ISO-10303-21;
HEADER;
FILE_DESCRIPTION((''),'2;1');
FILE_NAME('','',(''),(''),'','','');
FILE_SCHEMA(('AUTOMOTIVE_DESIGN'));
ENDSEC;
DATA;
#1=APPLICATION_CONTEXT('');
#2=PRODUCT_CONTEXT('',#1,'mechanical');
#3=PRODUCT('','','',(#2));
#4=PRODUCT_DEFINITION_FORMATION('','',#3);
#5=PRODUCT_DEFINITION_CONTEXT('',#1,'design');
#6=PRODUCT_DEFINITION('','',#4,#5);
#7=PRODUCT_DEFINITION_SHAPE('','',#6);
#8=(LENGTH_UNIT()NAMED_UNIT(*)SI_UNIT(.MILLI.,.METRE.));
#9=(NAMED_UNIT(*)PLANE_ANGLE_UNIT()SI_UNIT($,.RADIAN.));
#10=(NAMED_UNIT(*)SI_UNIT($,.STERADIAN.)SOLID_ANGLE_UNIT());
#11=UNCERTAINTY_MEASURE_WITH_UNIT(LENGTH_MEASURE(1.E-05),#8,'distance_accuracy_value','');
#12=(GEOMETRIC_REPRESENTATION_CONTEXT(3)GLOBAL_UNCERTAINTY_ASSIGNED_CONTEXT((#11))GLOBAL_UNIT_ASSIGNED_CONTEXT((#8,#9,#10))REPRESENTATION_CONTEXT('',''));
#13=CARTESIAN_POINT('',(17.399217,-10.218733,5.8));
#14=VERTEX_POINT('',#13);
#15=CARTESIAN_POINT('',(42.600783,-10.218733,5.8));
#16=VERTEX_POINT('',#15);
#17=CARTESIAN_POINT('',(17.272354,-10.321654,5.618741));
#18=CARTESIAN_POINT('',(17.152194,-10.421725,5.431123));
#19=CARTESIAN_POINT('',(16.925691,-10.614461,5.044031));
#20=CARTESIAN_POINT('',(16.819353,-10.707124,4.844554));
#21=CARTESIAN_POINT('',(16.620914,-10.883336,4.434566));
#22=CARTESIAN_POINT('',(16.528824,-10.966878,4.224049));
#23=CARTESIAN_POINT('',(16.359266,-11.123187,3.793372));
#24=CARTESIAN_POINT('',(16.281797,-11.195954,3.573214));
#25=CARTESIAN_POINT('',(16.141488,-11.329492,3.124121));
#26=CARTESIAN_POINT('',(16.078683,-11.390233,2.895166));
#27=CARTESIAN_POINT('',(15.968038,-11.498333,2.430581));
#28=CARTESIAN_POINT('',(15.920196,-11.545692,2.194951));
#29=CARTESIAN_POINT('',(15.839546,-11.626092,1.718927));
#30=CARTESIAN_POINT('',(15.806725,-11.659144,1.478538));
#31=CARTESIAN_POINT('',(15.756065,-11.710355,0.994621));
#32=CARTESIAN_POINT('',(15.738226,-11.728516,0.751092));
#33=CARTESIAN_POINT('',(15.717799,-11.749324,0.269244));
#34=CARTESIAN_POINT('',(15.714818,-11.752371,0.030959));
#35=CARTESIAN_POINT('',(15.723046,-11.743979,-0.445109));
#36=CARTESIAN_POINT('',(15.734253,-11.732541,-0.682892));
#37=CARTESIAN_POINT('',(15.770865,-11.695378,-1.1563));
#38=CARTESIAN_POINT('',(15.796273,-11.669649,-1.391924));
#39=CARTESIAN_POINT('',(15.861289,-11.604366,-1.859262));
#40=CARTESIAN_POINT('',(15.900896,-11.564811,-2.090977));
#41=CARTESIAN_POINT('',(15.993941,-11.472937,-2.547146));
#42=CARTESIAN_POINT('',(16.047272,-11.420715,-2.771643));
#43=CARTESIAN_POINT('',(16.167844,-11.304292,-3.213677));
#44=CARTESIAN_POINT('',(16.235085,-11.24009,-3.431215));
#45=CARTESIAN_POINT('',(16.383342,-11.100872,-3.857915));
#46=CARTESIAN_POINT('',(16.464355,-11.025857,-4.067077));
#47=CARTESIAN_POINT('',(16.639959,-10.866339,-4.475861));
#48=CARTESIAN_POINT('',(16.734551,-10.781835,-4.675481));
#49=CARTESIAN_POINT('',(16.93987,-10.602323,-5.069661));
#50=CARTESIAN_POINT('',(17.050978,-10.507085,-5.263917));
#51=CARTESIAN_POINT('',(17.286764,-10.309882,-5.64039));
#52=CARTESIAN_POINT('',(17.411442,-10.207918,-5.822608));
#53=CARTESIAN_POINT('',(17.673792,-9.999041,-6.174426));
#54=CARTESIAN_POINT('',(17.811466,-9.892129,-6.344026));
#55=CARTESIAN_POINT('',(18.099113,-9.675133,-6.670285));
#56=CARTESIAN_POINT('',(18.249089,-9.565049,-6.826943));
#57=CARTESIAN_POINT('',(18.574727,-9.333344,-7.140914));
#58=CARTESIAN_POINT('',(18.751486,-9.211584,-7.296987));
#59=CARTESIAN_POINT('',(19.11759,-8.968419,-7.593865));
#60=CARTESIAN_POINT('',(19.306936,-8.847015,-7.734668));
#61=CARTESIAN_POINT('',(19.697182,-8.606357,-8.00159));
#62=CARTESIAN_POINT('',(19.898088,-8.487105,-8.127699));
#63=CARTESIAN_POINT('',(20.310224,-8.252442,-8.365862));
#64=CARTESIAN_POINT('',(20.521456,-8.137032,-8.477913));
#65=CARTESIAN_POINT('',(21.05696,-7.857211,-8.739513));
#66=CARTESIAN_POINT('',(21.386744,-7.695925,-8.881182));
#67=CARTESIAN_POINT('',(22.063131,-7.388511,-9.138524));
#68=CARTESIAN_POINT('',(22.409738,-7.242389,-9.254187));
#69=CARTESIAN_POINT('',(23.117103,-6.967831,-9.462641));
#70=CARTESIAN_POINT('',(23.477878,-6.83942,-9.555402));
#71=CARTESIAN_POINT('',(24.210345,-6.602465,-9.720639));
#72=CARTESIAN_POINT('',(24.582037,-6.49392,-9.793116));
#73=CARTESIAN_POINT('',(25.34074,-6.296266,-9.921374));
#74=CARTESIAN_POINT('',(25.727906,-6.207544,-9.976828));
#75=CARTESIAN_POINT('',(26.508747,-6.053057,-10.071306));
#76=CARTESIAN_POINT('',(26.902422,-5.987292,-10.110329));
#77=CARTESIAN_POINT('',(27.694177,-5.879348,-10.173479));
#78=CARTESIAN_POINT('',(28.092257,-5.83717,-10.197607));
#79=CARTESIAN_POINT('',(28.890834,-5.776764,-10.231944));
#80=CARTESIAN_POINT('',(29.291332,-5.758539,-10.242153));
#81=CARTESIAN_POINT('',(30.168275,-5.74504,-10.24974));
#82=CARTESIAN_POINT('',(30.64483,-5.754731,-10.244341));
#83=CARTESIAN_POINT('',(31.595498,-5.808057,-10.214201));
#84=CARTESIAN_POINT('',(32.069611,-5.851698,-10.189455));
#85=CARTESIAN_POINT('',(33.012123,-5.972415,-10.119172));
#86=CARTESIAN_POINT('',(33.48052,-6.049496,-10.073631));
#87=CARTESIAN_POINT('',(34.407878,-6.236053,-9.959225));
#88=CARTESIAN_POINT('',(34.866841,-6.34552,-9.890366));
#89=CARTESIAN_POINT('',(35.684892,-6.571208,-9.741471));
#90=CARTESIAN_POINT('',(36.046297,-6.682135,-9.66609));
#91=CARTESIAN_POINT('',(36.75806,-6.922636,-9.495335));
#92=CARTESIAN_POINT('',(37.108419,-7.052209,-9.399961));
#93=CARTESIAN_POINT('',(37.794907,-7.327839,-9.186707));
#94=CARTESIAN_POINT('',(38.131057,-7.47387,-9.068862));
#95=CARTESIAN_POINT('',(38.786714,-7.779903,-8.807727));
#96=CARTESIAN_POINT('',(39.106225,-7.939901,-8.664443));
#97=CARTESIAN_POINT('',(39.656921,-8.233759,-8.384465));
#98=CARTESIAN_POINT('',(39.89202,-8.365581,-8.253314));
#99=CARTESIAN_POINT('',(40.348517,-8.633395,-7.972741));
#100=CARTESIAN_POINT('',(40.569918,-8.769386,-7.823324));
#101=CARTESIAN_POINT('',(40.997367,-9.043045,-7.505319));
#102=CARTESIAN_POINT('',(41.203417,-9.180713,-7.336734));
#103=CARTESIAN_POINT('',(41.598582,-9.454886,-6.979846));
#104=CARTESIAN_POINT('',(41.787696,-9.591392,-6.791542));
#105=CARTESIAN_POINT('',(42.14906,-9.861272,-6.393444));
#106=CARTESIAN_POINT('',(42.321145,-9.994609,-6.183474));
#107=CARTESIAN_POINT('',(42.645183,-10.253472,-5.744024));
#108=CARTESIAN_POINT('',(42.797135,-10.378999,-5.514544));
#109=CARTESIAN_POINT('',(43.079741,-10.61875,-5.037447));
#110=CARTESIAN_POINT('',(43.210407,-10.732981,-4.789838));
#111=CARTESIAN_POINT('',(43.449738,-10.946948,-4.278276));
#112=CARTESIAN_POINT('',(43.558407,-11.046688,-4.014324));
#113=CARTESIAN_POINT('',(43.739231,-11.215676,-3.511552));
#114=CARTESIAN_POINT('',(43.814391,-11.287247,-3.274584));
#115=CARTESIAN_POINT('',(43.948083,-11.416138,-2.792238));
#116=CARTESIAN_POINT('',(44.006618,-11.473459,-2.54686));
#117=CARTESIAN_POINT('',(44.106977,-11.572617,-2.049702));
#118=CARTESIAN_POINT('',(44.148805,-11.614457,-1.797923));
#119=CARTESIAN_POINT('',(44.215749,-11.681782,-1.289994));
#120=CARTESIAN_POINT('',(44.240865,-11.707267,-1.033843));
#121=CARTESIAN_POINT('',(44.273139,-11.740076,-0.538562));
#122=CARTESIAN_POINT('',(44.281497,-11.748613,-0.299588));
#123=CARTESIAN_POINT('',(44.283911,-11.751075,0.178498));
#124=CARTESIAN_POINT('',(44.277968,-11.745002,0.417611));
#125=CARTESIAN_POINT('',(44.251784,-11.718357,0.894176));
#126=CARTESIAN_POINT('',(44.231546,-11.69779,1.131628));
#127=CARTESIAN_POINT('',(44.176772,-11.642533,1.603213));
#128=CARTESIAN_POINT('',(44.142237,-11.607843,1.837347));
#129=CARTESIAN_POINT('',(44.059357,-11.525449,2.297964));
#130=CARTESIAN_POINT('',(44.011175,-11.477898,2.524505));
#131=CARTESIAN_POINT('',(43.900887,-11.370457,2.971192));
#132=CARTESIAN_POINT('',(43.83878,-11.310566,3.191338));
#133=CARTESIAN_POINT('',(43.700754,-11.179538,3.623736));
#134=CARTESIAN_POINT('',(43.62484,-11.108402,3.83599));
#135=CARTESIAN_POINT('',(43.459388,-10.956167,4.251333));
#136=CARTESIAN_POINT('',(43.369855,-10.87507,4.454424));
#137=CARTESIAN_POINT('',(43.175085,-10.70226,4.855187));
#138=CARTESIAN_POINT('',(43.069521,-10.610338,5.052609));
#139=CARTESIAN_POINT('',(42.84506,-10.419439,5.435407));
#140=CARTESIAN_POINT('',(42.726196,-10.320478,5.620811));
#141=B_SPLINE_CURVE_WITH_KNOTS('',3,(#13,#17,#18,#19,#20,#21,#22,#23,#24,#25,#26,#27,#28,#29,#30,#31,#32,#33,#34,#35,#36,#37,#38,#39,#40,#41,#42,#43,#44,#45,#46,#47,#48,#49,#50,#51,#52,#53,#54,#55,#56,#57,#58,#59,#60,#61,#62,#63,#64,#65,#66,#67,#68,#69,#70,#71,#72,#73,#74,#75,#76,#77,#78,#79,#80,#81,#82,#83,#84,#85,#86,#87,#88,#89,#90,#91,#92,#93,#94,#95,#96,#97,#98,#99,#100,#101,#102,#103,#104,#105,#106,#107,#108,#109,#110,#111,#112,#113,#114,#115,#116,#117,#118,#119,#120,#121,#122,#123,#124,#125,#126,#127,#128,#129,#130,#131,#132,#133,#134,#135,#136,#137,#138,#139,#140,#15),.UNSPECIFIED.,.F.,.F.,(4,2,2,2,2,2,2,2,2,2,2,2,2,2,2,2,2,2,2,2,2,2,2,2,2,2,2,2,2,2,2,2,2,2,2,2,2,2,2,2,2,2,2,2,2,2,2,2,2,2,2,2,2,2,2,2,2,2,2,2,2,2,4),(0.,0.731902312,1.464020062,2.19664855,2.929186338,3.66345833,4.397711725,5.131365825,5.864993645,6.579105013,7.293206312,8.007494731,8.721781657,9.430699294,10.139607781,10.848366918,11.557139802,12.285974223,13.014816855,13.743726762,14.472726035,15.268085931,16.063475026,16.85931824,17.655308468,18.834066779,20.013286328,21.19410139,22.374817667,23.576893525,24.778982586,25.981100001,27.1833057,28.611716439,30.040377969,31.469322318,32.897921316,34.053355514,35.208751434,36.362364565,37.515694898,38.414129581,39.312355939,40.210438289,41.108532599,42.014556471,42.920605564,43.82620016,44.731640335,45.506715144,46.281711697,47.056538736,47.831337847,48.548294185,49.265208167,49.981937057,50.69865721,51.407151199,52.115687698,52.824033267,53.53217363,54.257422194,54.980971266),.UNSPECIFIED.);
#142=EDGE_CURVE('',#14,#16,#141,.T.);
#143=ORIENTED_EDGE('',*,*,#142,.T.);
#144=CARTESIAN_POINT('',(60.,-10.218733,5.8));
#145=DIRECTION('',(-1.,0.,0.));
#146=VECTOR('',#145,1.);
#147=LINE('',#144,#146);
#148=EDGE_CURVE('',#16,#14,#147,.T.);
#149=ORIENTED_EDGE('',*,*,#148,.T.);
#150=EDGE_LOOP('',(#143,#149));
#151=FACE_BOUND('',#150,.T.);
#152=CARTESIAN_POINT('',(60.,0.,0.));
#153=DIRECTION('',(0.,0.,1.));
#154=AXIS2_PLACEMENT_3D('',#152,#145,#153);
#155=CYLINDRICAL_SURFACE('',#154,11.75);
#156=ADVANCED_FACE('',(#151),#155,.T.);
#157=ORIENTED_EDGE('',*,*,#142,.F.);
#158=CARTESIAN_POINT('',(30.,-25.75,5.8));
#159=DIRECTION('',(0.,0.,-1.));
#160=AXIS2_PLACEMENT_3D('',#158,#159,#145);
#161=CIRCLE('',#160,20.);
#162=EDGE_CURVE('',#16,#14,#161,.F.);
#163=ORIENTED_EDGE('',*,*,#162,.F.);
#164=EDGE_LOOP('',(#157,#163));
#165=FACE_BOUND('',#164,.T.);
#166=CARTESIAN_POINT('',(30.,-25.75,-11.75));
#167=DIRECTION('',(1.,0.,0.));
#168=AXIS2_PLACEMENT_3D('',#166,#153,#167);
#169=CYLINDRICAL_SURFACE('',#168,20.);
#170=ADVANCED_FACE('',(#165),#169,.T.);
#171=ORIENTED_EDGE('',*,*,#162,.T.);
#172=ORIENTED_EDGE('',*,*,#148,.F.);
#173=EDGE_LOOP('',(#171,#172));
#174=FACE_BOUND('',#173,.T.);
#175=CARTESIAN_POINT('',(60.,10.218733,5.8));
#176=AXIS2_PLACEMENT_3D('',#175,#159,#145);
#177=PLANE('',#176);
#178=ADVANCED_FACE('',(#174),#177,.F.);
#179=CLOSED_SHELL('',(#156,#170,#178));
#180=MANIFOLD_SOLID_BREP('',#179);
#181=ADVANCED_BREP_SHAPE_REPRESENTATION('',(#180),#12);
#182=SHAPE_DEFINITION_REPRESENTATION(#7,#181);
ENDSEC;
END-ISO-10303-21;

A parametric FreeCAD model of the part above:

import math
import FreeCAD as App
import Part
import Sketcher
Q = App.Units.Quantity

doc = App.newDocument("Part")
body = doc.addObject("PartDesign::Body", "Body")

sketch1 = body.newObject("Sketcher::SketchObject", "Sketch")
sketch1.AttachmentSupport = (doc.getObject("YZ_Plane"), [""])
sketch1.MapMode = "FlatFace"
sketch1.addGeometry(Part.Circle(App.Vector(0, 0, 0), App.Vector(0, 0, 1), 11.75), False)
sketch1.addConstraint(Sketcher.Constraint("Coincident", 0, 3, -1, 1))
sketch1.addConstraint(Sketcher.Constraint("Diameter", 0, Q("23.5 mm")))
pad1 = body.newObject("PartDesign::Pad", "Pad")
pad1.Profile = sketch1
pad1.Length = 60

sketch2 = body.newObject("Sketcher::SketchObject", "Sketch001")
sketch2.AttachmentSupport = (doc.getObject("YZ_Plane"), [""])
sketch2.MapMode = "FlatFace"
sketch2.addGeometry(Part.LineSegment(App.Vector(10.218733, 5.8, 0), App.Vector(-10.218733, 5.8, 0)), False)
sketch2.addGeometry(Part.ArcOfCircle(Part.Circle(App.Vector(0, 0, 0), App.Vector(0, 0, 1), 11.75), math.radians(29.578596), math.radians(150.421404)), False)
sketch2.addConstraint(Sketcher.Constraint("Coincident", 0, 1, 1, 1))
sketch2.addConstraint(Sketcher.Constraint("Coincident", 1, 2, 0, 2))
sketch2.addConstraint(Sketcher.Constraint("Horizontal", 0))
sketch2.addConstraint(Sketcher.Constraint("Coincident", 1, 3, -1, 1))
sketch2.addConstraint(Sketcher.Constraint("Radius", 1, Q("11.75 mm")))
sketch2.addConstraint(Sketcher.Constraint("DistanceY", -1, 1, 0, 1, Q("5.8 mm")))
pocket1 = body.newObject("PartDesign::Pocket", "Pocket")
pocket1.Profile = sketch2
pocket1.Type = "ThroughAll"
pocket1.Reversed = True

sketch3 = body.newObject("Sketcher::SketchObject", "Sketch002")
sketch3.AttachmentSupport = (doc.getObject("XY_Plane"), [""])
sketch3.MapMode = "FlatFace"
sketch3.AttachmentOffset = App.Placement(App.Vector(0, 0, 5.8), App.Rotation())
sketch3.addGeometry(Part.LineSegment(App.Vector(60, 11.75, 0), App.Vector(0, 11.75, 0)), False)
sketch3.addGeometry(Part.LineSegment(App.Vector(0, 11.75, 0), App.Vector(0, -11.75, 0)), False)
sketch3.addGeometry(Part.LineSegment(App.Vector(0, -11.75, 0), App.Vector(15.717143, -11.75, 0)), False)
sketch3.addGeometry(Part.ArcOfCircle(Part.Circle(App.Vector(30, -25.75, 0), App.Vector(0, 0, 1), 20), math.radians(44.427004), math.radians(135.572996)), False)
sketch3.addGeometry(Part.LineSegment(App.Vector(44.282857, -11.75, 0), App.Vector(60, -11.75, 0)), False)
sketch3.addGeometry(Part.LineSegment(App.Vector(60, -11.75, 0), App.Vector(60, 11.75, 0)), False)
sketch3.addConstraint(Sketcher.Constraint("Coincident", 0, 2, 1, 1))
sketch3.addConstraint(Sketcher.Constraint("Coincident", 1, 2, 2, 1))
sketch3.addConstraint(Sketcher.Constraint("Coincident", 2, 2, 3, 2))
sketch3.addConstraint(Sketcher.Constraint("Coincident", 3, 1, 4, 1))
sketch3.addConstraint(Sketcher.Constraint("Coincident", 4, 2, 5, 1))
sketch3.addConstraint(Sketcher.Constraint("Coincident", 5, 2, 0, 1))
sketch3.addConstraint(Sketcher.Constraint("Horizontal", 0))
sketch3.addConstraint(Sketcher.Constraint("Vertical", 1))
sketch3.addConstraint(Sketcher.Constraint("Horizontal", 2))
sketch3.addConstraint(Sketcher.Constraint("Horizontal", 4))
sketch3.addConstraint(Sketcher.Constraint("Vertical", 5))
sketch3.addConstraint(Sketcher.Constraint("Symmetric", 0, 2, 1, 2, -1, 1))
sketch3.addConstraint(Sketcher.Constraint("Horizontal", 2, 2, 3, 1))
sketch3.addConstraint(Sketcher.Constraint("Equal", 2, 4))
sketch3.addConstraint(Sketcher.Constraint("Radius", 3, Q("20 mm")))
sketch3.addConstraint(Sketcher.Constraint("DistanceX", 0, 2, 0, 1, Q("60 mm")))
sketch3.addConstraint(Sketcher.Constraint("DistanceY", 1, 2, 1, 1, Q("23.5 mm")))
sketch3.addConstraint(Sketcher.Constraint("DistanceY", 3, 3, 1, 2, Q("14 mm")))
pocket2 = body.newObject("PartDesign::Pocket", "Pocket001")
pocket2.Profile = sketch3
pocket2.Type = "ThroughAll"

doc.recompute()
